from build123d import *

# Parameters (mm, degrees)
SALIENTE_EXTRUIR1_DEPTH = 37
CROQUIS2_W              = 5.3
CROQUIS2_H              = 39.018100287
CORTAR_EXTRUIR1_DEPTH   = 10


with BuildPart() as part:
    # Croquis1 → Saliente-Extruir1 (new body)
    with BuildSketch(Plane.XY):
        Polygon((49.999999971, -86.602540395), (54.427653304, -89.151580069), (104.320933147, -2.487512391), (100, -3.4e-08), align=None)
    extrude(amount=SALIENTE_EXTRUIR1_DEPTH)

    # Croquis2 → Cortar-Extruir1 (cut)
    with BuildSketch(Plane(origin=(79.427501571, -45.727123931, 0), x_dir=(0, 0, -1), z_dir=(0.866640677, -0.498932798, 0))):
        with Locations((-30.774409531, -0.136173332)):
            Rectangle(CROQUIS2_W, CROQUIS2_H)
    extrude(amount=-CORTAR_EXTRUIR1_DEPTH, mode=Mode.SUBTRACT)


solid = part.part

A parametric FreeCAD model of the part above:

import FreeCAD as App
import Part
import Sketcher
from FreeCAD import Vector
Q = App.Units.Quantity


def add_polygon(sketch, points):
    """Adds a closed chain of lines whose ends are joined by coincident constraints."""
    first, n = sketch.GeometryCount, len(points)
    for a, b in zip(points, points[1:] + points[:1]):
        sketch.addGeometry(Part.LineSegment(App.Vector(*a, 0), App.Vector(*b, 0)), False)
    for i in range(n):
        sketch.addConstraint(Sketcher.Constraint("Coincident", first + i, 2, first + (i + 1) % n, 1))

doc = App.newDocument("Part")
body = doc.addObject("PartDesign::Body", "Body")

sketch1 = body.newObject("Sketcher::SketchObject", "Sketch")
sketch1.AttachmentSupport = (doc.getObject("XY_Plane"), [""])
sketch1.MapMode = "FlatFace"
add_polygon(sketch1, [(50, -86.6), (54.4, -89.2), (104.3, -2.5), (100, 0)])
sketch1.addConstraint(Sketcher.Constraint("PointOnObject", 2, 2, -1))
sketch1.addConstraint(Sketcher.Constraint("Perpendicular", 0, 1))
sketch1.addConstraint(Sketcher.Constraint("Equal", 1, 3))
sketch1.addConstraint(Sketcher.Constraint("Angle", 3, Q("-120 deg")))
sketch1.addConstraint(Sketcher.Constraint("Distance", 1, Q("100 mm")))
sketch1.addConstraint(Sketcher.Constraint("DistanceX", -1, 1, 2, 2, Q("100 mm")))
sketch1.addConstraint(Sketcher.Constraint("DistanceY", 0, 2, -1, 1, Q("89.15158 mm")))
sketch1.addConstraint(Sketcher.Constraint("DistanceX", 0, 2, 1, 2, Q("49.89328 mm")))
pad1 = body.newObject("PartDesign::Pad", "Pad")
pad1.Profile = sketch1
pad1.Length = 37

sketch2 = body.newObject("Sketcher::SketchObject", "Sketch001")
sketch2.Placement = App.Placement(Vector(79.427502, -45.727124, 0), App.Rotation(Vector(0, 0, -1), Vector(0.498932798, 0.866640677, 0), Vector(0.866640677, -0.498932798, 0), "ZXY"))
add_polygon(sketch2, [(-33, 19), (-33, -20), (-28, -20), (-28, 19)])
sketch2.addConstraint(Sketcher.Constraint("Vertical", 0))
sketch2.addConstraint(Sketcher.Constraint("Horizontal", 1))
sketch2.addConstraint(Sketcher.Constraint("Vertical", 2))
sketch2.addConstraint(Sketcher.Constraint("Horizontal", 3))
sketch2.addConstraint(Sketcher.Constraint("DistanceX", 1, 1, 1, 2, Q("5.3 mm")))
sketch2.addConstraint(Sketcher.Constraint("DistanceY", 0, 2, 0, 1, Q("39.0181 mm")))
sketch2.addConstraint(Sketcher.Constraint("DistanceX", 0, 2, -1, 1, Q("33.42441 mm")))
sketch2.addConstraint(Sketcher.Constraint("DistanceY", 0, 2, -1, 1, Q("19.645223 mm")))
pocket1 = body.newObject("PartDesign::Pocket", "Pocket")
pocket1.Profile = sketch2
pocket1.Length = 10

doc.recompute()
